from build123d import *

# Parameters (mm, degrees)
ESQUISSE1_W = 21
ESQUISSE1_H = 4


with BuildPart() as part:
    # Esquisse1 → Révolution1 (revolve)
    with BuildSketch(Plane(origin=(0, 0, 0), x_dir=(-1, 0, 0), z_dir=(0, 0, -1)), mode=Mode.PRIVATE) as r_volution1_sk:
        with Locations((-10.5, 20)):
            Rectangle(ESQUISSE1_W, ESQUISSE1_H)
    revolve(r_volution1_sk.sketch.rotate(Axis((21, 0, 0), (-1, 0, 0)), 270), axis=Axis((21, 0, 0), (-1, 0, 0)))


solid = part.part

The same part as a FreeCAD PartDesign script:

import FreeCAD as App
import Part
import Sketcher

V = App.Vector
Q = App.Units.Quantity


def add_polygon(sketch, points):
    """Adds a closed chain of lines whose ends are joined by coincident constraints."""
    first, n = sketch.GeometryCount, len(points)
    for a, b in zip(points, points[1:] + points[:1]):
        sketch.addGeometry(Part.LineSegment(App.Vector(*a, 0), App.Vector(*b, 0)), False)
    for i in range(n):
        sketch.addConstraint(Sketcher.Constraint("Coincident", first + i, 2, first + (i + 1) % n, 1))

doc = App.newDocument("Part")
body = doc.addObject("PartDesign::Body", "Body")

# Sketch on XY plane
sketch1 = doc.addObject("Sketcher::SketchObject", "Sketch")
body.addObject(sketch1)
sketch1.AttachmentSupport = (doc.XY_Plane, [""])
sketch1.MapMode = "FlatFace"
add_polygon(sketch1, [(21, 22), (21, 18), (0, 18), (0, 22)])  # lines 0-3
sketch1.addConstraint([
    Sketcher.Constraint("Vertical", 0),
    Sketcher.Constraint("Horizontal", 1),
    Sketcher.Constraint("Vertical", 2),
    Sketcher.Constraint("Horizontal", 3),
    Sketcher.Constraint("PointOnObject", 1, 2, -2),
    Sketcher.Constraint("DistanceX", 1, 2, 1, 1, Q("21 mm")),
    Sketcher.Constraint("DistanceY", 0, 2, 0, 1, Q("4 mm")),
    Sketcher.Constraint("DistanceY", -1, 1, 0, 2, Q("18 mm")),
])
revolution = doc.addObject("PartDesign::Revolution", "Revolution")
body.addObject(revolution)
revolution.Profile = sketch1
revolution.ReferenceAxis = (sketch1, ["H_Axis"])
revolution.Angle = 360

doc.recompute()
